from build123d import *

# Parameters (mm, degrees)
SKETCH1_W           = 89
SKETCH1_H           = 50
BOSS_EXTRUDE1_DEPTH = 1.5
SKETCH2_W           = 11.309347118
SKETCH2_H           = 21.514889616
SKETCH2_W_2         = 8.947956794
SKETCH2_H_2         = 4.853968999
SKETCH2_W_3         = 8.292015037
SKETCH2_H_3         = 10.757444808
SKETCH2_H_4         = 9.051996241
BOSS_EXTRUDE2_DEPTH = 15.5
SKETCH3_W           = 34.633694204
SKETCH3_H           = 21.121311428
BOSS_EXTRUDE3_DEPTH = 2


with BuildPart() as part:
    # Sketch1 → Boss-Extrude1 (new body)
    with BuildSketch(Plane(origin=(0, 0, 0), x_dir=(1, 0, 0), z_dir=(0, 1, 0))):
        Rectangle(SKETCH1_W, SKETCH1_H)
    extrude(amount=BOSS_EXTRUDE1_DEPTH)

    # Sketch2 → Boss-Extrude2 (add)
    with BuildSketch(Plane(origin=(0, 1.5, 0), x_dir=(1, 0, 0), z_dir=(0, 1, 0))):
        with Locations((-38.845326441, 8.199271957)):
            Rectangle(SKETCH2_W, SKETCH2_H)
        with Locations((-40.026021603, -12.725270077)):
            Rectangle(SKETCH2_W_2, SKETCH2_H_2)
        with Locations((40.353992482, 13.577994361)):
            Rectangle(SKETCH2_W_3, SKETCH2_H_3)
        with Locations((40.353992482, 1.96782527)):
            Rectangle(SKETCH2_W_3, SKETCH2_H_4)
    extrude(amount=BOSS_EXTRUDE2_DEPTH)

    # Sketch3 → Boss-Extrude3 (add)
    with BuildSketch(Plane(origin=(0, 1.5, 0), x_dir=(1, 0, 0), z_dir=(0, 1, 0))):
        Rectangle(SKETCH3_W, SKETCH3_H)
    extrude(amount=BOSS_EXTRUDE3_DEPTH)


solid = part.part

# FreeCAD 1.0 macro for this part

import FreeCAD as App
import Part
import Sketcher

doc = App.newDocument("Part")
body = doc.addObject("PartDesign::Body", "Body")

# Sketch on XZ plane
sketch1 = doc.addObject("Sketcher::SketchObject", "Sketch")
body.addObject(sketch1)
sketch1.AttachmentSupport = (doc.XZ_Plane, [""])
sketch1.MapMode = "FlatFace"
sketch1.addGeometry(Part.LineSegment(App.Vector(-44, -25, 0), App.Vector(-44, 25, 0)), False)
sketch1.addGeometry(Part.LineSegment(App.Vector(-44, 25, 0), App.Vector(44, 25, 0)), False)
sketch1.addGeometry(Part.LineSegment(App.Vector(44, 25, 0), App.Vector(44, -25, 0)), False)
sketch1.addGeometry(Part.LineSegment(App.Vector(44, -25, 0), App.Vector(-44, -25, 0)), False)
sketch1.addConstraint(Sketcher.Constraint("Coincident", 0, 2, 1, 1))
sketch1.addConstraint(Sketcher.Constraint("Coincident", 1, 2, 2, 1))
sketch1.addConstraint(Sketcher.Constraint("Coincident", 2, 2, 3, 1))
sketch1.addConstraint(Sketcher.Constraint("Coincident", 3, 2, 0, 1))
sketch1.addConstraint(Sketcher.Constraint("Vertical", 0))
sketch1.addConstraint(Sketcher.Constraint("Horizontal", 1))
sketch1.addConstraint(Sketcher.Constraint("Vertical", 2))
sketch1.addConstraint(Sketcher.Constraint("Horizontal", 3))
sketch1.addConstraint(Sketcher.Constraint("Symmetric", 0, 2, 2, 2, -1, 1))
sketch1.addConstraint(Sketcher.Constraint("DistanceX", 1, 1, 1, 2, 89.0))
sketch1.addConstraint(Sketcher.Constraint("DistanceY", 0, 1, 0, 2, 50.0))
pad1 = doc.addObject("PartDesign::Pad", "Pad")
body.addObject(pad1)
pad1.Profile = sketch1
pad1.Length = 1.5
pad1.Reversed = True

# Sketch on XZ plane
sketch2 = doc.addObject("Sketcher::SketchObject", "Sketch001")
body.addObject(sketch2)
sketch2.AttachmentSupport = (doc.XZ_Plane, [""])
sketch2.MapMode = "FlatFace"
sketch2.AttachmentOffset = App.Placement(App.Vector(0, 0, -1.5), App.Rotation())
sketch2.addGeometry(Part.LineSegment(App.Vector(-44.5, -19, 0), App.Vector(-44.5, 2.6, 0)), False)
sketch2.addGeometry(Part.LineSegment(App.Vector(-44.5, 2.6, 0), App.Vector(-33.2, 2.6, 0)), False)
sketch2.addGeometry(Part.LineSegment(App.Vector(-33.2, 2.6, 0), App.Vector(-33.2, -19, 0)), False)
sketch2.addGeometry(Part.LineSegment(App.Vector(-33.2, -19, 0), App.Vector(-44.5, -19, 0)), False)
sketch2.addGeometry(Part.LineSegment(App.Vector(-44.5, 10.3, 0), App.Vector(-44.5, 15.2, 0)), False)
sketch2.addGeometry(Part.LineSegment(App.Vector(-44.5, 15.2, 0), App.Vector(-35.6, 15.2, 0)), False)
sketch2.addGeometry(Part.LineSegment(App.Vector(-35.6, 15.2, 0), App.Vector(-35.6, 10.3, 0)), False)
sketch2.addGeometry(Part.LineSegment(App.Vector(-35.6, 10.3, 0), App.Vector(-44.5, 10.3, 0)), False)
sketch2.addGeometry(Part.LineSegment(App.Vector(36.2, -19, 0), App.Vector(36.2, -8.2, 0)), False)
sketch2.addGeometry(Part.LineSegment(App.Vector(36.2, -8.2, 0), App.Vector(44.5, -8.2, 0)), False)
sketch2.addGeometry(Part.LineSegment(App.Vector(44.5, -8.2, 0), App.Vector(44.5, -19, 0)), False)
sketch2.addGeometry(Part.LineSegment(App.Vector(44.5, -19, 0), App.Vector(36.2, -19, 0)), False)
sketch2.addGeometry(Part.LineSegment(App.Vector(36.2, -6.5, 0), App.Vector(36.2, 2.6, 0)), False)
sketch2.addGeometry(Part.LineSegment(App.Vector(36.2, 2.6, 0), App.Vector(44.5, 2.6, 0)), False)
sketch2.addGeometry(Part.LineSegment(App.Vector(44.5, 2.6, 0), App.Vector(44.5, -6.5, 0)), False)
sketch2.addGeometry(Part.LineSegment(App.Vector(44.5, -6.5, 0), App.Vector(36.2, -6.5, 0)), False)
sketch2.addConstraint(Sketcher.Constraint("Coincident", 0, 2, 1, 1))
sketch2.addConstraint(Sketcher.Constraint("Coincident", 1, 2, 2, 1))
sketch2.addConstraint(Sketcher.Constraint("Coincident", 2, 2, 3, 1))
sketch2.addConstraint(Sketcher.Constraint("Coincident", 3, 2, 0, 1))
sketch2.addConstraint(Sketcher.Constraint("Coincident", 4, 2, 5, 1))
sketch2.addConstraint(Sketcher.Constraint("Coincident", 5, 2, 6, 1))
sketch2.addConstraint(Sketcher.Constraint("Coincident", 6, 2, 7, 1))
sketch2.addConstraint(Sketcher.Constraint("Coincident", 7, 2, 4, 1))
sketch2.addConstraint(Sketcher.Constraint("Coincident", 8, 2, 9, 1))
sketch2.addConstraint(Sketcher.Constraint("Coincident", 9, 2, 10, 1))
sketch2.addConstraint(Sketcher.Constraint("Coincident", 10, 2, 11, 1))
sketch2.addConstraint(Sketcher.Constraint("Coincident", 11, 2, 8, 1))
sketch2.addConstraint(Sketcher.Constraint("Coincident", 12, 2, 13, 1))
sketch2.addConstraint(Sketcher.Constraint("Coincident", 13, 2, 14, 1))
sketch2.addConstraint(Sketcher.Constraint("Coincident", 14, 2, 15, 1))
sketch2.addConstraint(Sketcher.Constraint("Coincident", 15, 2, 12, 1))
sketch2.addConstraint(Sketcher.Constraint("Vertical", 0))
sketch2.addConstraint(Sketcher.Constraint("Horizontal", 1))
sketch2.addConstraint(Sketcher.Constraint("Vertical", 2))
sketch2.addConstraint(Sketcher.Constraint("Horizontal", 3))
sketch2.addConstraint(Sketcher.Constraint("Vertical", 4))
sketch2.addConstraint(Sketcher.Constraint("Horizontal", 5))
sketch2.addConstraint(Sketcher.Constraint("Vertical", 6))
sketch2.addConstraint(Sketcher.Constraint("Horizontal", 7))
sketch2.addConstraint(Sketcher.Constraint("Vertical", 8))
sketch2.addConstraint(Sketcher.Constraint("Horizontal", 9))
sketch2.addConstraint(Sketcher.Constraint("Vertical", 10))
sketch2.addConstraint(Sketcher.Constraint("Horizontal", 11))
sketch2.addConstraint(Sketcher.Constraint("Vertical", 12))
sketch2.addConstraint(Sketcher.Constraint("Horizontal", 13))
sketch2.addConstraint(Sketcher.Constraint("Vertical", 14))
sketch2.addConstraint(Sketcher.Constraint("Horizontal", 15))
sketch2.addConstraint(Sketcher.Constraint("Symmetric", 3, 2, 10, 2, -2))
sketch2.addConstraint(Sketcher.Constraint("Symmetric", 0, 2, 13, 2, -2))
sketch2.addConstraint(Sketcher.Constraint("Vertical", 3, 2, 4, 2))
sketch2.addConstraint(Sketcher.Constraint("Vertical", 11, 2, 12, 2))
sketch2.addConstraint(Sketcher.Constraint("DistanceX", 0, 2, -1, 1, 44.5))
sketch2.addConstraint(Sketcher.Constraint("DistanceY", 0, 1, 0, 2, 21.51489))
sketch2.addConstraint(Sketcher.Constraint("DistanceY", 4, 1, 4, 2, 4.853969))
sketch2.addConstraint(Sketcher.Constraint("DistanceX", 1, 1, 1, 2, 11.309347))
sketch2.addConstraint(Sketcher.Constraint("DistanceX", 5, 1, 5, 2, 8.947957))
sketch2.addConstraint(Sketcher.Constraint("DistanceX", 9, 1, 9, 2, 8.292015))
sketch2.addConstraint(Sketcher.Constraint("DistanceY", 8, 1, 8, 2, 10.757445))
sketch2.addConstraint(Sketcher.Constraint("DistanceY", 12, 1, 12, 2, 9.051996))
sketch2.addConstraint(Sketcher.Constraint("DistanceY", 8, 2, -1, 1, 8.199272))
sketch2.addConstraint(Sketcher.Constraint("DistanceY", 0, 2, 4, 2, 12.594082))
pad2 = doc.addObject("PartDesign::Pad", "Pad001")
body.addObject(pad2)
pad2.Profile = sketch2
pad2.Length = 15.5
pad2.Reversed = True

# Sketch on XZ plane
sketch3 = doc.addObject("Sketcher::SketchObject", "Sketch002")
body.addObject(sketch3)
sketch3.AttachmentSupport = (doc.XZ_Plane, [""])
sketch3.MapMode = "FlatFace"
sketch3.AttachmentOffset = App.Placement(App.Vector(0, 0, -1.5), App.Rotation())
sketch3.addGeometry(Part.LineSegment(App.Vector(-17, -11, 0), App.Vector(-17, 11, 0)), False)
sketch3.addGeometry(Part.LineSegment(App.Vector(-17, 11, 0), App.Vector(17, 11, 0)), False)
sketch3.addGeometry(Part.LineSegment(App.Vector(17, 11, 0), App.Vector(17, -11, 0)), False)
sketch3.addGeometry(Part.LineSegment(App.Vector(17, -11, 0), App.Vector(-17, -11, 0)), False)
sketch3.addConstraint(Sketcher.Constraint("Coincident", 0, 2, 1, 1))
sketch3.addConstraint(Sketcher.Constraint("Coincident", 1, 2, 2, 1))
sketch3.addConstraint(Sketcher.Constraint("Coincident", 2, 2, 3, 1))
sketch3.addConstraint(Sketcher.Constraint("Coincident", 3, 2, 0, 1))
sketch3.addConstraint(Sketcher.Constraint("Vertical", 0))
sketch3.addConstraint(Sketcher.Constraint("Horizontal", 1))
sketch3.addConstraint(Sketcher.Constraint("Vertical", 2))
sketch3.addConstraint(Sketcher.Constraint("Horizontal", 3))
sketch3.addConstraint(Sketcher.Constraint("Symmetric", 0, 2, 2, 2, -1, 1))
sketch3.addConstraint(Sketcher.Constraint("DistanceY", 0, 1, 0, 2, 21.121311))
sketch3.addConstraint(Sketcher.Constraint("DistanceX", 1, 1, 1, 2, 34.633694))
pad3 = doc.addObject("PartDesign::Pad", "Pad002")
body.addObject(pad3)
pad3.Profile = sketch3
pad3.Length = 2
pad3.Reversed = True

doc.recompute()
